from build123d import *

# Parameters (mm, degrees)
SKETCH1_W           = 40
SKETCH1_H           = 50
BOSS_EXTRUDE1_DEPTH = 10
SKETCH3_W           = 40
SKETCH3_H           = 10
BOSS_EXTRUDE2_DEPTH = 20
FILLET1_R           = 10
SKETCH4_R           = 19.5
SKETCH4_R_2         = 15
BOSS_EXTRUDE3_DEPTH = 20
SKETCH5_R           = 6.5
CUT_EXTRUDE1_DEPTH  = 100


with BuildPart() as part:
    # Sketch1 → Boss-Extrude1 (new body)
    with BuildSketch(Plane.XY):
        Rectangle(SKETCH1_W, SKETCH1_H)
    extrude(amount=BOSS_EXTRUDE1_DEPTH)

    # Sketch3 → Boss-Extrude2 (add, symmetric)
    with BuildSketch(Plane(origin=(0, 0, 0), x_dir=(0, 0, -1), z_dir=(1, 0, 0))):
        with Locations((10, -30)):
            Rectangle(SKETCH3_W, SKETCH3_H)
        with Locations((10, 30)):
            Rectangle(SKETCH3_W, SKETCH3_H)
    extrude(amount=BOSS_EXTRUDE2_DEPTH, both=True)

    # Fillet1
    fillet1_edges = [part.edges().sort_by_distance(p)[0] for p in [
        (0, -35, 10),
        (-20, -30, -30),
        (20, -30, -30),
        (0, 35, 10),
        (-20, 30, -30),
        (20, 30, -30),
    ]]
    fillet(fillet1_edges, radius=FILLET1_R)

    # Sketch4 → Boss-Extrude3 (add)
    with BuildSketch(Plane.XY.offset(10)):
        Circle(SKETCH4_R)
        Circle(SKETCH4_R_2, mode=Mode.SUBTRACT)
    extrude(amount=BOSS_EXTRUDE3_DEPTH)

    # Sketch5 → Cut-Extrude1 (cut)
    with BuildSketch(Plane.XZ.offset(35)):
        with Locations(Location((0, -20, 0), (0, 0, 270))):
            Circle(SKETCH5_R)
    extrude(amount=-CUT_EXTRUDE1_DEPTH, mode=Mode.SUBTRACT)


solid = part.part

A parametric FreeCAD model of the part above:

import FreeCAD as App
import Part
import Sketcher
Q = App.Units.Quantity


def edges_at(feature, points):
    """Names of the edges that pass closest to the given points."""
    edges = feature.Shape.Edges
    near = lambda p: min(range(len(edges)), key=lambda i: edges[i].distToShape(Part.Vertex(*p))[0])
    return sorted({f"Edge{near(p) + 1}" for p in points})

doc = App.newDocument("Part")
body = doc.addObject("PartDesign::Body", "Body")

sketch1 = body.newObject("Sketcher::SketchObject", "Sketch")
sketch1.AttachmentSupport = (doc.getObject("XY_Plane"), [""])
sketch1.MapMode = "FlatFace"
sketch1.addGeometry([
    Part.LineSegment(App.Vector(-20, 25, 0), App.Vector(-20, -25, 0)),
    Part.LineSegment(App.Vector(-20, -25, 0), App.Vector(20, -25, 0)),
    Part.LineSegment(App.Vector(20, -25, 0), App.Vector(20, 25, 0)),
    Part.LineSegment(App.Vector(20, 25, 0), App.Vector(-20, 25, 0)),
], False)
sketch1.addConstraint([
    Sketcher.Constraint("Coincident", 0, 2, 1, 1),
    Sketcher.Constraint("Coincident", 1, 2, 2, 1),
    Sketcher.Constraint("Coincident", 2, 2, 3, 1),
    Sketcher.Constraint("Coincident", 3, 2, 0, 1),
    Sketcher.Constraint("Vertical", 0),
    Sketcher.Constraint("Horizontal", 1),
    Sketcher.Constraint("Vertical", 2),
    Sketcher.Constraint("Horizontal", 3),
    Sketcher.Constraint("Symmetric", 0, 2, 2, 2, -1, 1),
    Sketcher.Constraint("DistanceX", 1, 1, 1, 2, Q("40 mm")),
    Sketcher.Constraint("DistanceY", 0, 2, 0, 1, Q("50 mm")),
])
pad1 = body.newObject("PartDesign::Pad", "Pad")
pad1.Profile = sketch1
pad1.Length = 10

sketch2 = body.newObject("Sketcher::SketchObject", "Sketch001")
sketch2.AttachmentSupport = (doc.getObject("YZ_Plane"), [""])
sketch2.MapMode = "FlatFace"
sketch2.addGeometry([
    Part.LineSegment(App.Vector(-25, 10, 0), App.Vector(-35, 10, 0)),
    Part.LineSegment(App.Vector(-35, 10, 0), App.Vector(-35, -30, 0)),
    Part.LineSegment(App.Vector(-35, -30, 0), App.Vector(-25, -30, 0)),
    Part.LineSegment(App.Vector(-25, -30, 0), App.Vector(-25, 10, 0)),
    Part.LineSegment(App.Vector(35, 10, 0), App.Vector(25, 10, 0)),
    Part.LineSegment(App.Vector(25, 10, 0), App.Vector(25, -30, 0)),
    Part.LineSegment(App.Vector(25, -30, 0), App.Vector(35, -30, 0)),
    Part.LineSegment(App.Vector(35, -30, 0), App.Vector(35, 10, 0)),
], False)
sketch2.addConstraint([
    Sketcher.Constraint("Coincident", 0, 2, 1, 1),
    Sketcher.Constraint("Coincident", 1, 2, 2, 1),
    Sketcher.Constraint("Coincident", 2, 2, 3, 1),
    Sketcher.Constraint("Coincident", 3, 2, 0, 1),
    Sketcher.Constraint("Coincident", 4, 2, 5, 1),
    Sketcher.Constraint("Coincident", 5, 2, 6, 1),
    Sketcher.Constraint("Coincident", 6, 2, 7, 1),
    Sketcher.Constraint("Coincident", 7, 2, 4, 1),
    Sketcher.Constraint("Horizontal", 0),
    Sketcher.Constraint("Vertical", 1),
    Sketcher.Constraint("Horizontal", 2),
    Sketcher.Constraint("Vertical", 3),
    Sketcher.Constraint("Horizontal", 4),
    Sketcher.Constraint("Vertical", 5),
    Sketcher.Constraint("Horizontal", 6),
    Sketcher.Constraint("Vertical", 7),
    Sketcher.Constraint("Symmetric", 3, 2, 4, 2, -2),
    Sketcher.Constraint("Symmetric", 1, 2, 6, 2, -2),
    Sketcher.Constraint("DistanceX", 0, 2, 0, 1, Q("10 mm")),
    Sketcher.Constraint("DistanceY", 1, 2, 1, 1, Q("40 mm")),
    Sketcher.Constraint("DistanceX", 0, 2, -1, 1, Q("35 mm")),
    Sketcher.Constraint("DistanceY", -1, 1, 0, 2, Q("10 mm")),
])
pad2 = body.newObject("PartDesign::Pad", "Pad001")
pad2.Profile = sketch2
pad2.Length = 40
pad2.Midplane = True
doc.recompute()

fillet = body.newObject("PartDesign::Fillet", "Fillet")
fillet.Base = (pad2, edges_at(pad2, [
    (0, -35, 10),
    (-20, -30, -30),
    (20, -30, -30),
    (0, 35, 10),
    (-20, 30, -30),
    (20, 30, -30),
]))
fillet.Radius = 10

sketch3 = body.newObject("Sketcher::SketchObject", "Sketch002")
sketch3.AttachmentSupport = (doc.getObject("XY_Plane"), [""])
sketch3.MapMode = "FlatFace"
sketch3.AttachmentOffset = App.Placement(App.Vector(0, 0, 10), App.Rotation())
sketch3.addGeometry([
    Part.Circle(App.Vector(0, 0, 0), App.Vector(0, 0, 1), 19.5),
    Part.Circle(App.Vector(0, 0, 0), App.Vector(0, 0, 1), 15),
], False)
sketch3.addConstraint([
    Sketcher.Constraint("Coincident", 0, 3, -1, 1),
    Sketcher.Constraint("Coincident", 1, 3, -1, 1),
    Sketcher.Constraint("Diameter", 0, Q("39 mm")),
    Sketcher.Constraint("Diameter", 1, Q("30 mm")),
])
pad3 = body.newObject("PartDesign::Pad", "Pad002")
pad3.Profile = sketch3
pad3.Length = 20

sketch4 = body.newObject("Sketcher::SketchObject", "Sketch003")
sketch4.AttachmentSupport = (doc.getObject("XZ_Plane"), [""])
sketch4.MapMode = "FlatFace"
sketch4.AttachmentOffset = App.Placement(App.Vector(0, 0, 35), App.Rotation())
sketch4.addGeometry(Part.Circle(App.Vector(0, -20, 0), App.Vector(0, 0, 1), 6.5), False)
sketch4.addConstraint([
    Sketcher.Constraint("PointOnObject", 0, 3, -2),
    Sketcher.Constraint("Diameter", 0, Q("13 mm")),
    Sketcher.Constraint("DistanceY", 0, 3, -1, 1, Q("20 mm")),
])
pocket1 = body.newObject("PartDesign::Pocket", "Pocket")
pocket1.Profile = sketch4
pocket1.Length = 100

doc.recompute()
